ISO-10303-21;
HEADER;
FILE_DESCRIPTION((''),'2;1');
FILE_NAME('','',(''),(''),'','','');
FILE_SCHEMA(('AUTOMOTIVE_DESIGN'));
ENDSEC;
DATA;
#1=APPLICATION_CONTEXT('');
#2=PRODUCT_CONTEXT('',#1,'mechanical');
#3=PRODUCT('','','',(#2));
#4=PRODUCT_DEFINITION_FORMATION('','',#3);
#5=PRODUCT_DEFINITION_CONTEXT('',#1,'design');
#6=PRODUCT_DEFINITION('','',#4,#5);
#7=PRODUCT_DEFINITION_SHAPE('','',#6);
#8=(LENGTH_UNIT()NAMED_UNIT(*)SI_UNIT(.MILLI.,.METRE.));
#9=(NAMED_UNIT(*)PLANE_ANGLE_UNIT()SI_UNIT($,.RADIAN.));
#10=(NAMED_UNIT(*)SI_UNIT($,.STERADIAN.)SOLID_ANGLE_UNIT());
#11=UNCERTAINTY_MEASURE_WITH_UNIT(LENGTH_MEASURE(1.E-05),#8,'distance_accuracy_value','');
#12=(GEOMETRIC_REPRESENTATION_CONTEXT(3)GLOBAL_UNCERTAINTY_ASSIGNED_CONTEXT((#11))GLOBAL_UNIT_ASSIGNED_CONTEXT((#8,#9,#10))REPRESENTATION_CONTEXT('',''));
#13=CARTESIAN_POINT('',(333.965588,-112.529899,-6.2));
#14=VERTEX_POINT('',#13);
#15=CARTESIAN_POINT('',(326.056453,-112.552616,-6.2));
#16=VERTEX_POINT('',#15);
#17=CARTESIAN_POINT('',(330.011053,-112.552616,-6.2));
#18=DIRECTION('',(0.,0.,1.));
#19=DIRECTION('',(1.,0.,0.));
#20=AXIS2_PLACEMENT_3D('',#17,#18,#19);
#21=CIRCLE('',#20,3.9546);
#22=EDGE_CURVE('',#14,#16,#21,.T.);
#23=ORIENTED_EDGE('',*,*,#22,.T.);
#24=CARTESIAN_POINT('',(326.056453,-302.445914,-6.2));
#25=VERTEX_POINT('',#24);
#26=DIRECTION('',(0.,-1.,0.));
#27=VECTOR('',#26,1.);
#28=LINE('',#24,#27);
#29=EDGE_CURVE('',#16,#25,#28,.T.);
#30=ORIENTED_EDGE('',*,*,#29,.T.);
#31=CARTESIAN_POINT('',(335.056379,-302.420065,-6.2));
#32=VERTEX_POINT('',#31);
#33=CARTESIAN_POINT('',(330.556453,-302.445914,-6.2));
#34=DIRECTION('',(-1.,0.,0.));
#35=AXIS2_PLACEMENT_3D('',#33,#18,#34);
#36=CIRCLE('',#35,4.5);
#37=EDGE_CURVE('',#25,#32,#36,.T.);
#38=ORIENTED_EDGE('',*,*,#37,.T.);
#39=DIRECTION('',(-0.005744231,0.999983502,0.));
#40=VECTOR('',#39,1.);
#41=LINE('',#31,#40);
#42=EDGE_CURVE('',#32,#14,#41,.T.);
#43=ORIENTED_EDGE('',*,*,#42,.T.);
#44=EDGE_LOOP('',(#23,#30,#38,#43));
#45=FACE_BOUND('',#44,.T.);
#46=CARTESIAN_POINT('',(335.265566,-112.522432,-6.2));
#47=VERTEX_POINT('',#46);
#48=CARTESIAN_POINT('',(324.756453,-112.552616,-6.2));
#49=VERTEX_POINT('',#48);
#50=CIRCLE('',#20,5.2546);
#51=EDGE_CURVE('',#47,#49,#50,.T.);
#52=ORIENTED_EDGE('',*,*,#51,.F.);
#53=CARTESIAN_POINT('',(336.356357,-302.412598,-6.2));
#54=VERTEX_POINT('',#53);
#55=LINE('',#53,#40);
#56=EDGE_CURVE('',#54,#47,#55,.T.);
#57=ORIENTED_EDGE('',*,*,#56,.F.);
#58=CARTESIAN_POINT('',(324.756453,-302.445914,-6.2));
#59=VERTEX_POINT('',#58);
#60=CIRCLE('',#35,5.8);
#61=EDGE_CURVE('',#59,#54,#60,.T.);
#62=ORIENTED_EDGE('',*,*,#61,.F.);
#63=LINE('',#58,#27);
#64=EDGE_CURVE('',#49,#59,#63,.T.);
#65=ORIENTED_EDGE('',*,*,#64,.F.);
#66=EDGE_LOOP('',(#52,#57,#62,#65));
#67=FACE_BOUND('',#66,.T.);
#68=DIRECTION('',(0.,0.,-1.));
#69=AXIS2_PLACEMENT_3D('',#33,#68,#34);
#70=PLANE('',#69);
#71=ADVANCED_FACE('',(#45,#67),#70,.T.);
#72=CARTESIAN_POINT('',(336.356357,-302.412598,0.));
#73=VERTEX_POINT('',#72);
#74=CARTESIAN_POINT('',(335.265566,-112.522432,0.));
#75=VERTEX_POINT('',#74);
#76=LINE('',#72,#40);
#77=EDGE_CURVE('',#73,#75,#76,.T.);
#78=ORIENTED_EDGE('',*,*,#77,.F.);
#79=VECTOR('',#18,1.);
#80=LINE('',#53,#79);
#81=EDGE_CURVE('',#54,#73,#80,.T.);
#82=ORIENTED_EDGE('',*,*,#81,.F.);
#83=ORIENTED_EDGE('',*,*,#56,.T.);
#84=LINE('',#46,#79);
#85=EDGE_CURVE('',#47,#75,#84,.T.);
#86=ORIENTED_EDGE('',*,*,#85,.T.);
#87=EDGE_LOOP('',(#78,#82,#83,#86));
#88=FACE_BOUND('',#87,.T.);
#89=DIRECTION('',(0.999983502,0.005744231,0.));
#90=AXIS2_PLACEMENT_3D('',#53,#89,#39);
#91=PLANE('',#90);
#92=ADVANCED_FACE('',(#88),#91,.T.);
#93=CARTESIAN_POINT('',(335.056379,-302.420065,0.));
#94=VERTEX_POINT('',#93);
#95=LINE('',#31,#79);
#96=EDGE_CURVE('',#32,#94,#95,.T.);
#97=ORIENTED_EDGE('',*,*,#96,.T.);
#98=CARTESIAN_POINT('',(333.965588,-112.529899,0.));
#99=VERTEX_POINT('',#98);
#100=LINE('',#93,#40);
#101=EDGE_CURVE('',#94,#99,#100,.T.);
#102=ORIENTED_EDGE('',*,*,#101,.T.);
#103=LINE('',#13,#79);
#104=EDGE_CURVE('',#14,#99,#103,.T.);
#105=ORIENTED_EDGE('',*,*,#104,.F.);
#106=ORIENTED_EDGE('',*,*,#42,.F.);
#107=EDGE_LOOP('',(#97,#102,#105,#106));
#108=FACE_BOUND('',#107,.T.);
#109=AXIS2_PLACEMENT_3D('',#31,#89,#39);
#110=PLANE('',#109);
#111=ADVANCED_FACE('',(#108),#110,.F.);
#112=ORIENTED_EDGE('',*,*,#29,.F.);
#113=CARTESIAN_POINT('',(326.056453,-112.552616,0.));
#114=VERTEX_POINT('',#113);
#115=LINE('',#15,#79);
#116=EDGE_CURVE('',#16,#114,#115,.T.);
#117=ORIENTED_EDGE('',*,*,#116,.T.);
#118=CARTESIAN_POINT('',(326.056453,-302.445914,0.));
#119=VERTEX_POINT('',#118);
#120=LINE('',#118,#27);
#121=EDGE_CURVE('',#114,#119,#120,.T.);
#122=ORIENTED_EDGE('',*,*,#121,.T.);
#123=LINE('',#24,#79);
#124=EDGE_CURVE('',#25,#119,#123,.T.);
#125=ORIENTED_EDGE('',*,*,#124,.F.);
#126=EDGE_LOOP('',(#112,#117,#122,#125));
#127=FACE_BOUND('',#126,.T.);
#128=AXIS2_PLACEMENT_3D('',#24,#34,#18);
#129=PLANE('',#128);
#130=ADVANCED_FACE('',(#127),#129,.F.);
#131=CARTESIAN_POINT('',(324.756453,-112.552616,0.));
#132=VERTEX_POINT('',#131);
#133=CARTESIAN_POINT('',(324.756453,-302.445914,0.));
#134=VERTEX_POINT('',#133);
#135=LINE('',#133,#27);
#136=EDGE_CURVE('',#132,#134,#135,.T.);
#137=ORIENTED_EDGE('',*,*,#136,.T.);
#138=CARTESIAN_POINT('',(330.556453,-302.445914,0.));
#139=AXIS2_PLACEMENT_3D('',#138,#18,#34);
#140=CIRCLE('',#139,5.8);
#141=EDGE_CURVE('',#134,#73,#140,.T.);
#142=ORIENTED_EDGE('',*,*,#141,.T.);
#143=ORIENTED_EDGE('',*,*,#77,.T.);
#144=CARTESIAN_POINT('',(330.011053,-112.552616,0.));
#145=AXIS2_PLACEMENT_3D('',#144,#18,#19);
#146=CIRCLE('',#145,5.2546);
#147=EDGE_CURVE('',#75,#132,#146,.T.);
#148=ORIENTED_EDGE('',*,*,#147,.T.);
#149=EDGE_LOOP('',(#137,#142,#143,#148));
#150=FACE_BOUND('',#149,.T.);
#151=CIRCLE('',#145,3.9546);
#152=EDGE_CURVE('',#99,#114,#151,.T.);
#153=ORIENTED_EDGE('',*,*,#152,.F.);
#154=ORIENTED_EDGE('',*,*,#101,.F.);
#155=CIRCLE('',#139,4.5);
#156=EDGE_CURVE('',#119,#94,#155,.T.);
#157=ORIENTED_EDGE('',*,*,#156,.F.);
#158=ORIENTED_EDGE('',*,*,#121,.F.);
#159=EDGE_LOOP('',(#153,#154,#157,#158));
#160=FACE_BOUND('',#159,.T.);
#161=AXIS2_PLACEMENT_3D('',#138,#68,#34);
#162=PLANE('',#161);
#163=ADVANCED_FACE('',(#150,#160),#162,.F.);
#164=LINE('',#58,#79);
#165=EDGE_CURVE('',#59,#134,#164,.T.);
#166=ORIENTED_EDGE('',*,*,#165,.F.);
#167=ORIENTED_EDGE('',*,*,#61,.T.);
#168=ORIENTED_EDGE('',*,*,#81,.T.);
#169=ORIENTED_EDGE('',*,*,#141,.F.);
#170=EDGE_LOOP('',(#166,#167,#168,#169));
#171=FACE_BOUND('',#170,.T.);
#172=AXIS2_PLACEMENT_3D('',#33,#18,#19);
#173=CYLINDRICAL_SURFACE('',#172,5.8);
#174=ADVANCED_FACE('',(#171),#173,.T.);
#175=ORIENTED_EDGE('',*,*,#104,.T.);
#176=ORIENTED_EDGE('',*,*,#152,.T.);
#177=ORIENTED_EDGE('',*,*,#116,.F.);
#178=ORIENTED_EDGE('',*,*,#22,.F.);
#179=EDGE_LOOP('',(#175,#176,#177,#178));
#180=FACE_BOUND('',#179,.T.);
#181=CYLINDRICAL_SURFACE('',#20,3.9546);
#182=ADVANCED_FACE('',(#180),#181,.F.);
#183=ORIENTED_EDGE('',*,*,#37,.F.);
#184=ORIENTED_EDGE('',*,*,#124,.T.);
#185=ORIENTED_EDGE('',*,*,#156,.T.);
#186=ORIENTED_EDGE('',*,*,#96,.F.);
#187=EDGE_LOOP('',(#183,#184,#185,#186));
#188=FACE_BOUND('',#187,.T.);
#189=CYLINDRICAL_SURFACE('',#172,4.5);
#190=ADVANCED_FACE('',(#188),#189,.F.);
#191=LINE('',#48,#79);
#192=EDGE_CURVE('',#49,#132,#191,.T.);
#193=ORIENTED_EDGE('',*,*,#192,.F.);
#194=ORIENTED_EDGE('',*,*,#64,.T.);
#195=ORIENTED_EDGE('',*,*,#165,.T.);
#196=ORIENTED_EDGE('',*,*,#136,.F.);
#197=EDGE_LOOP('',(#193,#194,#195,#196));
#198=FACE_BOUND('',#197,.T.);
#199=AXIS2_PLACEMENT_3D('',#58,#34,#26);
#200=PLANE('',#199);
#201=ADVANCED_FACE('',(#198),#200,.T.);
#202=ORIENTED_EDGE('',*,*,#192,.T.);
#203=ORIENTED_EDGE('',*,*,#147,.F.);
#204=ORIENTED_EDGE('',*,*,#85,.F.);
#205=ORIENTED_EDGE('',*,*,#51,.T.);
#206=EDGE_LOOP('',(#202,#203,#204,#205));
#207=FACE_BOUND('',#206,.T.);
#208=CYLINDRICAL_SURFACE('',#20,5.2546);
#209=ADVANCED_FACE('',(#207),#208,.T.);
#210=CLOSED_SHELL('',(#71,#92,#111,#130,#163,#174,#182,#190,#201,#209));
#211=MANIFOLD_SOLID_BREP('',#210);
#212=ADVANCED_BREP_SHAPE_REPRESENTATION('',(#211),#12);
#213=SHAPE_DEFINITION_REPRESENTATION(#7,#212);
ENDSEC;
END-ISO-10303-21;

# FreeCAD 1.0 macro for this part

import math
import FreeCAD as App
import Part
import Sketcher
from FreeCAD import Vector

doc = App.newDocument("Part")
params = doc.addObject("Spreadsheet::Sheet", "Params")
for row, (alias, value) in enumerate([
    ("sketch1_radius", "5.8 mm"),
    ("sketch1_radius2", "4.5 mm"),
    ("pad1_length", "6.2 mm"),
], start=1):
    params.set(f"A{row}", alias)
    params.set(f"B{row}", "=" + value)
    params.setAlias(f"B{row}", alias)

body = doc.addObject("PartDesign::Body", "Body")

# Sketch on XY plane
sketch1 = body.newObject("Sketcher::SketchObject", "Sketch")
sketch1.AttachmentSupport = (doc.getObject("XY_Plane"), [""])
sketch1.MapMode = "FlatFace"
sketch1.addGeometry([
    Part.LineSegment(Vector(324.756453, -112.552616, 0), Vector(324.756453, -302.445914, 0)),  # 0
    Part.ArcOfCircle(Part.Circle(Vector(330.556453, -302.445914, 0), Vector(0, 0, 1), 5.8), math.radians(180), math.radians(360.329122)),  # 1
    Part.LineSegment(Vector(336.356357, -302.412598, 0), Vector(335.265566, -112.522432, 0)),  # 2
    Part.ArcOfCircle(Part.Circle(Vector(330.011053, -112.552616, 0), Vector(0, 0, 1), 5.2546), math.radians(0.329122), math.radians(180)),  # 3
    Part.LineSegment(Vector(326.056453, -302.445914, 0), Vector(326.056453, -112.552616, 0)),  # 4
    Part.ArcOfCircle(Part.Circle(Vector(330.011053, -112.552616, 0), Vector(0, 0, 1), 3.9546), math.radians(0.329122), math.radians(180)),  # 5
    Part.LineSegment(Vector(333.965588, -112.529899, 0), Vector(335.056379, -302.420065, 0)),  # 6
    Part.ArcOfCircle(Part.Circle(Vector(330.556453, -302.445914, 0), Vector(0, 0, 1), 4.5), math.radians(180), math.radians(360.329122)),  # 7
], False)
sketch1.addConstraint([
    Sketcher.Constraint("Tangent", 0, 2, 1, 1),
    Sketcher.Constraint("Tangent", 1, 2, 2, 1),
    Sketcher.Constraint("Tangent", 2, 2, 3, 1),
    Sketcher.Constraint("Tangent", 3, 2, 0, 1),
    Sketcher.Constraint("Tangent", 4, 2, 5, 2),
    Sketcher.Constraint("Tangent", 5, 1, 6, 1),
    Sketcher.Constraint("Tangent", 6, 2, 7, 2),
    Sketcher.Constraint("Tangent", 7, 1, 4, 1),
    Sketcher.Constraint("Vertical", 0),
    Sketcher.Constraint("Vertical", 4),
    Sketcher.Constraint("Coincident", 5, 3, 3, 3),
    Sketcher.Constraint("Coincident", 7, 3, 1, 3),
    Sketcher.Constraint("Radius", 1, 5.8),
    Sketcher.Constraint("Radius", 7, 4.5),
    Sketcher.Constraint("Radius", 3, 5.2546),
    Sketcher.Constraint("DistanceY", 0, 2, 0, 1, 189.893299),
    Sketcher.Constraint("DistanceY", 5, 1, -1, 1, 112.529899),
    Sketcher.Constraint("DistanceX", -1, 1, 6, 2, 335.056379),
])
sketch1.setExpression("Constraints[12]", "Params.sketch1_radius")
sketch1.setExpression("Constraints[13]", "Params.sketch1_radius2")
pad1 = body.newObject("PartDesign::Pad", "Pad")
pad1.Profile = sketch1
pad1.setExpression("Length", "Params.pad1_length")
pad1.Reversed = True

doc.recompute()
